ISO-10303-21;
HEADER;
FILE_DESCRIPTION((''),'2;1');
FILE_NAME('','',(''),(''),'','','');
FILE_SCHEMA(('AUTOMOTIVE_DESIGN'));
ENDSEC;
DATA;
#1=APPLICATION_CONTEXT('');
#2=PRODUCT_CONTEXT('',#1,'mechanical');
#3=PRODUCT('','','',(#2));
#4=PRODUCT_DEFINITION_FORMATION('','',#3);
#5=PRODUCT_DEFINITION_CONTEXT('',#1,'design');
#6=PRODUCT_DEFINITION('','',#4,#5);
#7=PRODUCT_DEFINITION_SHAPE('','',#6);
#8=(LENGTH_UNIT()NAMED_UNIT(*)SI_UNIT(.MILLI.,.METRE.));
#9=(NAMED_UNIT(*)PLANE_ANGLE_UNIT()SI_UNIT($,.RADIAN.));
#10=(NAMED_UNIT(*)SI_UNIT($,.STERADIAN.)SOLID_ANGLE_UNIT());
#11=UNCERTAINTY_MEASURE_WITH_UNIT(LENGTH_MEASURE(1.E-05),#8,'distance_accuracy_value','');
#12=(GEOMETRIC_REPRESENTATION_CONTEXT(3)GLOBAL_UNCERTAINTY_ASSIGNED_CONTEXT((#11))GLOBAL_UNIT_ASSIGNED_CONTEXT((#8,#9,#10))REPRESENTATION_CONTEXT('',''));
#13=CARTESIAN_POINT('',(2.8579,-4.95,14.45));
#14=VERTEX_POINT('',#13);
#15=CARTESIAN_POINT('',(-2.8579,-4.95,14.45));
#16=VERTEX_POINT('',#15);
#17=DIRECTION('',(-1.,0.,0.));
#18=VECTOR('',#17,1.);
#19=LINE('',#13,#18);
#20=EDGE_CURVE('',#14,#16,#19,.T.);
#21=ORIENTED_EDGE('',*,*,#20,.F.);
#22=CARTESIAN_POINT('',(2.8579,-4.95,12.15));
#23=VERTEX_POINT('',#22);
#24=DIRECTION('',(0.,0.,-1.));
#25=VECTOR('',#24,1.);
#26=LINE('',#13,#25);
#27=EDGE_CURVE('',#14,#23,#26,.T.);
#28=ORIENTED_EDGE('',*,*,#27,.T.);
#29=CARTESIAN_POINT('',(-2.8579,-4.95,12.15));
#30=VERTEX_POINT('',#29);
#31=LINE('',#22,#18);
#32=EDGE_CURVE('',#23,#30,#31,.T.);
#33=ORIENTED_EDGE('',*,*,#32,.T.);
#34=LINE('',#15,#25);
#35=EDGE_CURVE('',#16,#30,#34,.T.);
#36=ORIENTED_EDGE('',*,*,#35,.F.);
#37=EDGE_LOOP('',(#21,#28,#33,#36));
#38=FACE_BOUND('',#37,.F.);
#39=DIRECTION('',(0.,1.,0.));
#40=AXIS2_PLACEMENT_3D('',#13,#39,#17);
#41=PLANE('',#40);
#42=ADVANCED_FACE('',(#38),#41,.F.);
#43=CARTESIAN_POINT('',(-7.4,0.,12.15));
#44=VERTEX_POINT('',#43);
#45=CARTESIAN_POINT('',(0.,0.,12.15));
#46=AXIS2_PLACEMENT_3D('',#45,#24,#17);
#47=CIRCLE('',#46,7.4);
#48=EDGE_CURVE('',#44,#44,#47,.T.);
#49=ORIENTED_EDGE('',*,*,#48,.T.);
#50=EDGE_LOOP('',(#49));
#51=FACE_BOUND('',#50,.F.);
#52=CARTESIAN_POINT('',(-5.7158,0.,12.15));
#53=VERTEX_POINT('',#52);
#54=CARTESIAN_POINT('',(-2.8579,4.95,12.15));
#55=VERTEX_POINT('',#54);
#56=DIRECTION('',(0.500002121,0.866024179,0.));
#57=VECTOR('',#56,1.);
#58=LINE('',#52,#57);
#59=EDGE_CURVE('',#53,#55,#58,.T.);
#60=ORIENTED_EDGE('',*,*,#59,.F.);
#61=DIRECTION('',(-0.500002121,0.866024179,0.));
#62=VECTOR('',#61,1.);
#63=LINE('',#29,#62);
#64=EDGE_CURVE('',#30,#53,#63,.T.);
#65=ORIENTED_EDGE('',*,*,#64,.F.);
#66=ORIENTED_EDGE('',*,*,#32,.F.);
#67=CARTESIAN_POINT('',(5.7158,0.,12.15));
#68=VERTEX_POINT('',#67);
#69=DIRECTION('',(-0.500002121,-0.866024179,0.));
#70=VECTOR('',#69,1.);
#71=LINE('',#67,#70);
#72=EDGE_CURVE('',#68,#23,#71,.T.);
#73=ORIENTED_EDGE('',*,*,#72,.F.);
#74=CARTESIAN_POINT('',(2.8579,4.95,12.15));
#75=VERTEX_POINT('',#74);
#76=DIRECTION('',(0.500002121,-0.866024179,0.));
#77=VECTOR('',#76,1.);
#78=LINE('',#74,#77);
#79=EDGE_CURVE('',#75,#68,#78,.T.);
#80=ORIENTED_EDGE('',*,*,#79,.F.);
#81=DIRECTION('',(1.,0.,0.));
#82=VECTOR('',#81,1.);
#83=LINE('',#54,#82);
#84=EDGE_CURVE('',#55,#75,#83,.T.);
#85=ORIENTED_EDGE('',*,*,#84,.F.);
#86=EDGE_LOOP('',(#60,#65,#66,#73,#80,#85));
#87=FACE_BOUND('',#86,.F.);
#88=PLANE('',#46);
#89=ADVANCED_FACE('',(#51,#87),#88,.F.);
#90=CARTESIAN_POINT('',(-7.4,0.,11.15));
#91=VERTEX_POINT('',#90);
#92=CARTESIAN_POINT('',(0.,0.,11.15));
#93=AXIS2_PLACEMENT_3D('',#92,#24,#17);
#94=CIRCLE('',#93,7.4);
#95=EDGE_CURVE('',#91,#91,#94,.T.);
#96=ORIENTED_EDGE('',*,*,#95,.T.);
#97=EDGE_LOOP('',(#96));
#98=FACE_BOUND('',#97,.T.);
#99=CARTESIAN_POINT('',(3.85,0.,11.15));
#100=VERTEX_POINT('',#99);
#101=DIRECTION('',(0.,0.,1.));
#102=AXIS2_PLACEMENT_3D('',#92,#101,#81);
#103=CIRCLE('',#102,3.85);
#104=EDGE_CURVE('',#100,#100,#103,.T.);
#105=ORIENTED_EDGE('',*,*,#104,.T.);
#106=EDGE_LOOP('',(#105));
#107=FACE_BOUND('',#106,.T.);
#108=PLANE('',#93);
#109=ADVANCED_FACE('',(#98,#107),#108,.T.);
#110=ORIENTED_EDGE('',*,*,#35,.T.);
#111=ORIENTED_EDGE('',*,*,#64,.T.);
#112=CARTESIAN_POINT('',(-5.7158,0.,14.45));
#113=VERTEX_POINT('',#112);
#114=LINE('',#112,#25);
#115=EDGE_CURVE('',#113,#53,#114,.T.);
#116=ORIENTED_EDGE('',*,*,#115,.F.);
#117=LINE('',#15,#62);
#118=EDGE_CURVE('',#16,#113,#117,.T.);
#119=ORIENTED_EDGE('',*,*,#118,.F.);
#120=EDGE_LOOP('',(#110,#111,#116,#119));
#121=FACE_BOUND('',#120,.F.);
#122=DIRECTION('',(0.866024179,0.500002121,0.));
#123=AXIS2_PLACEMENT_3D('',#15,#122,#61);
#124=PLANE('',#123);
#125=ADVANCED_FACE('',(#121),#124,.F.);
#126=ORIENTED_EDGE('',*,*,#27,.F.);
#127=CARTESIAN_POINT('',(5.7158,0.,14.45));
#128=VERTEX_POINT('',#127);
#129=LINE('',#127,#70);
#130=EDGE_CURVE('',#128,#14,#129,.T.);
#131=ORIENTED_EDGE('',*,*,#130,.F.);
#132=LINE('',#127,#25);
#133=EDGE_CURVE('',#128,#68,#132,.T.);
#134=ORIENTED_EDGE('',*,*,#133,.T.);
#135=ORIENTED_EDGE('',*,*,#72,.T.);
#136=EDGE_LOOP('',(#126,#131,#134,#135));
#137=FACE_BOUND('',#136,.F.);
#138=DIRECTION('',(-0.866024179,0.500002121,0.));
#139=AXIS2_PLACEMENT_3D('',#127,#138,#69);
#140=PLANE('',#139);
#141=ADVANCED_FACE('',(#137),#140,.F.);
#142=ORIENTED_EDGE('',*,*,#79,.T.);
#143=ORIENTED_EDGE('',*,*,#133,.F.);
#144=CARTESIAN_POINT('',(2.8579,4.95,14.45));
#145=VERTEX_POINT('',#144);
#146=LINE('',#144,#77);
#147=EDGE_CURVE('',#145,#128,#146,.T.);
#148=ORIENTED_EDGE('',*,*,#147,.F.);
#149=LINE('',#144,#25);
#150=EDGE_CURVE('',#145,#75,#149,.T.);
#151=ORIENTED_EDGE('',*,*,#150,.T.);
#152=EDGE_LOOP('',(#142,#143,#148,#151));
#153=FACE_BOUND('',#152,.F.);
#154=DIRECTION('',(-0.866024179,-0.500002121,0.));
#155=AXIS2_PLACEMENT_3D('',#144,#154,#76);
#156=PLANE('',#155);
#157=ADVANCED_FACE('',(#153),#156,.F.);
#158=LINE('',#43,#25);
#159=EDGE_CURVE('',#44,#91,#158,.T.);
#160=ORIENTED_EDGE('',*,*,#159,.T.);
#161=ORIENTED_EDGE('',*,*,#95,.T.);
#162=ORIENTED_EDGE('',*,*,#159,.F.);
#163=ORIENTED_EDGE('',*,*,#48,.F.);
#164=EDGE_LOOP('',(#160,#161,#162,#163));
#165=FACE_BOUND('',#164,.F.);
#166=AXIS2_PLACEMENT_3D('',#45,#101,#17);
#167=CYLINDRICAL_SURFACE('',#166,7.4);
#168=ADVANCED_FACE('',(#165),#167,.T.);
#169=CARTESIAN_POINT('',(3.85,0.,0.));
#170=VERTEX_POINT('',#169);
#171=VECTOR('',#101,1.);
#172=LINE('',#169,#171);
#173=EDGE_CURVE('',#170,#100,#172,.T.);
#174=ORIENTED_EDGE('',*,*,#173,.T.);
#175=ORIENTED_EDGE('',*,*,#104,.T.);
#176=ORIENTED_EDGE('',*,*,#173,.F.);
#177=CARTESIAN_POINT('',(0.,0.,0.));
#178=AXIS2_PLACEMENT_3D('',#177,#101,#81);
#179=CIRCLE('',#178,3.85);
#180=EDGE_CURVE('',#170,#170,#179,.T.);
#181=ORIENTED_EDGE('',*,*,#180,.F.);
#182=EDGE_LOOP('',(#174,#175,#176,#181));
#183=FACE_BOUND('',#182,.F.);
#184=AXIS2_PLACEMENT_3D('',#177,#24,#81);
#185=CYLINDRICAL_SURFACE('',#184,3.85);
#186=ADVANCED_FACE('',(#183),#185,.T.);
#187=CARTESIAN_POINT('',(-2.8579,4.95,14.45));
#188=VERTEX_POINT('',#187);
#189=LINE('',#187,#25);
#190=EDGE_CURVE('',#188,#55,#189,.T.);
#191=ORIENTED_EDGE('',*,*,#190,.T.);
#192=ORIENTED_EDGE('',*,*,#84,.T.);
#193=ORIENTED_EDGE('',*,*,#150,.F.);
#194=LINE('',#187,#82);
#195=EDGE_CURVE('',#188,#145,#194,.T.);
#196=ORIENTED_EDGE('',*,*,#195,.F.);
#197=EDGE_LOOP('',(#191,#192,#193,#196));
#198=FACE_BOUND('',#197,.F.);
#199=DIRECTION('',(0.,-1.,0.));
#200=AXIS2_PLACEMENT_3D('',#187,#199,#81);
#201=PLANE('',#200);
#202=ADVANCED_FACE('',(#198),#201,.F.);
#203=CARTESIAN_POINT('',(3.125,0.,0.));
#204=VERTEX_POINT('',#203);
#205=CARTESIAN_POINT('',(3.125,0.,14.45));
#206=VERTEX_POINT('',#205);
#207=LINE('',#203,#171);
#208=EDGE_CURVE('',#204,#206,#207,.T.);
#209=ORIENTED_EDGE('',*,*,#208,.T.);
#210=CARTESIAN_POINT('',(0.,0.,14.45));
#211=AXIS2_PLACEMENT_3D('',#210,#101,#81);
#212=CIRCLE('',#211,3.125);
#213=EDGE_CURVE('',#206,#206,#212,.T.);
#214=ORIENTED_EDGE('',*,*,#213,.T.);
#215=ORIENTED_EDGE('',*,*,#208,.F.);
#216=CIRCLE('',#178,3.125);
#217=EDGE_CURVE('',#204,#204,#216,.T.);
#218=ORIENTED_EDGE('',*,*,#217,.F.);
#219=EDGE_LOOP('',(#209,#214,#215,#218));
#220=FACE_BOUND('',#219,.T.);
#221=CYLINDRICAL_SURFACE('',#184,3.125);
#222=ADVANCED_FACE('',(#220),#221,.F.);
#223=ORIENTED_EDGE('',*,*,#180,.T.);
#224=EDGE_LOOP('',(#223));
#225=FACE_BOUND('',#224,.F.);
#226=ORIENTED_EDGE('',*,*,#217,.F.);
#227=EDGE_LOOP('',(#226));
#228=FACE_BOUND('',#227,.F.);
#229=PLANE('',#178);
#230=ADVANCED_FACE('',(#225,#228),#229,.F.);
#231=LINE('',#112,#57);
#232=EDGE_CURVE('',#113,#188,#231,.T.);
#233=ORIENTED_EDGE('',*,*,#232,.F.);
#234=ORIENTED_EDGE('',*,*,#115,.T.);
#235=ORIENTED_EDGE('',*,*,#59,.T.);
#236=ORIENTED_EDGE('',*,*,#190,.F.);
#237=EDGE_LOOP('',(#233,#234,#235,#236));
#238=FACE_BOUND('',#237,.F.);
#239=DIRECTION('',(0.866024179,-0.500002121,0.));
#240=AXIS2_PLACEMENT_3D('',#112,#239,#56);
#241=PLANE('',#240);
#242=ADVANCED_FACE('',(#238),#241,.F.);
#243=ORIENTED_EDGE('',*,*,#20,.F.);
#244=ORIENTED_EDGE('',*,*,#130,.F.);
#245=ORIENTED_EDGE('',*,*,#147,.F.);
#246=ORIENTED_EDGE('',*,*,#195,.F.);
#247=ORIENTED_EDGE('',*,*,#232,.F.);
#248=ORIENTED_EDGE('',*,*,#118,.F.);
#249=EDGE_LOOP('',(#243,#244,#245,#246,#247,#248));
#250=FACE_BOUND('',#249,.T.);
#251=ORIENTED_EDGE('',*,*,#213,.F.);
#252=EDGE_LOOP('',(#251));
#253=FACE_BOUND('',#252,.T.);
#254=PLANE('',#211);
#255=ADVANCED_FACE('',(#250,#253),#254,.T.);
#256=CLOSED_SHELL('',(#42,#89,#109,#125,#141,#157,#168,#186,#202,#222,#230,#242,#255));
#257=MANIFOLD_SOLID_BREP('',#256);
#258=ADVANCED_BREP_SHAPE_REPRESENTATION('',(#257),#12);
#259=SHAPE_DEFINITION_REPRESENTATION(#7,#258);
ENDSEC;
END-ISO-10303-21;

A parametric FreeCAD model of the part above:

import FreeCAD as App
import Part
import Sketcher

V = App.Vector
Q = App.Units.Quantity

doc = App.newDocument("Part")
body = doc.addObject("PartDesign::Body", "Body")

sketch1 = body.newObject("Sketcher::SketchObject", "Sketch")
sketch1.AttachmentSupport = (doc.getObject("XY_Plane"), [""])
sketch1.MapMode = "FlatFace"
sketch1.addGeometry([
    Part.Circle(V(0, 0, 0), V(0, 0, 1), 3.9),
    Part.Circle(V(0, 0, 0), V(0, 0, 1), 3.1),
], False)
sketch1.addConstraint([
    Sketcher.Constraint("Coincident", 0, 3, -1, 1),
    Sketcher.Constraint("Coincident", 1, 3, -1, 1),
    Sketcher.Constraint("Diameter", 0, Q("7.7 mm")),
    Sketcher.Constraint("Diameter", 1, Q("6.25 mm")),
])
pad1 = body.newObject("PartDesign::Pad", "Pad")
pad1.Profile = sketch1
pad1.Length = 14.45

sketch2 = body.newObject("Sketcher::SketchObject", "Sketch001")
sketch2.AttachmentSupport = (doc.getObject("XY_Plane"), [""])
sketch2.MapMode = "FlatFace"
sketch2.AttachmentOffset = App.Placement(V(0, 0, 14.45), App.Rotation())
sketch2.addGeometry([
    Part.LineSegment(V(2.9, 5, 0), V(-2.9, 5, 0)),
    Part.LineSegment(V(-2.9, 5, 0), V(-5.7, 0, 0)),
    Part.LineSegment(V(-5.7, 0, 0), V(-2.9, -5, 0)),
    Part.LineSegment(V(-2.9, -5, 0), V(2.9, -5, 0)),
    Part.LineSegment(V(2.9, -5, 0), V(5.7, 0, 0)),
    Part.LineSegment(V(5.7, 0, 0), V(2.9, 5, 0)),
    Part.Circle(V(0, 0, 0), V(0, 0, 1), 3.9),
], False)
sketch2.addConstraint([
    Sketcher.Constraint("Coincident", 0, 2, 1, 1),
    Sketcher.Constraint("Coincident", 1, 2, 2, 1),
    Sketcher.Constraint("Coincident", 2, 2, 3, 1),
    Sketcher.Constraint("Coincident", 3, 2, 4, 1),
    Sketcher.Constraint("Coincident", 4, 2, 5, 1),
    Sketcher.Constraint("Coincident", 5, 2, 0, 1),
    Sketcher.Constraint("Horizontal", 0),
    Sketcher.Constraint("Horizontal", 3),
    Sketcher.Constraint("Coincident", 6, 3, -1, 1),
    Sketcher.Constraint("Symmetric", 0, 2, 3, 2, -1, 1),
    Sketcher.Constraint("Symmetric", 1, 2, 4, 2, -1, 1),
    Sketcher.Constraint("PointOnObject", 1, 2, -1),
    Sketcher.Constraint("Parallel", 2, 5),
    Sketcher.Constraint("Vertical", 0, 2, 2, 2),
    Sketcher.Constraint("Diameter", 6, Q("7.7 mm")),
    Sketcher.Constraint("DistanceY", 2, 2, 0, 2, Q("9.9 mm")),
    Sketcher.Constraint("Angle", 1, Q("-120.0001 deg")),
    Sketcher.Constraint("DistanceX", 0, 2, 0, 1, Q("5.7158 mm")),
])
pad2 = body.newObject("PartDesign::Pad", "Pad001")
pad2.Profile = sketch2
pad2.Length = 2.3
pad2.Reversed = True

sketch3 = body.newObject("Sketcher::SketchObject", "Sketch002")
sketch3.AttachmentSupport = (doc.getObject("XY_Plane"), [""])
sketch3.MapMode = "FlatFace"
sketch3.AttachmentOffset = App.Placement(V(0, 0, 12.15), App.Rotation())
sketch3.addGeometry([
    Part.Circle(V(0, 0, 0), V(0, 0, 1), 7.4),
    Part.Circle(V(0, 0, 0), V(0, 0, 1), 3.9),
], False)
sketch3.addConstraint([
    Sketcher.Constraint("Coincident", 0, 3, -1, 1),
    Sketcher.Constraint("Coincident", 1, 3, -1, 1),
    Sketcher.Constraint("Diameter", 0, Q("14.8 mm")),
    Sketcher.Constraint("Diameter", 1, Q("7.7 mm")),
])
pad3 = body.newObject("PartDesign::Pad", "Pad002")
pad3.Profile = sketch3
pad3.Length = 1
pad3.Reversed = True

doc.recompute()
